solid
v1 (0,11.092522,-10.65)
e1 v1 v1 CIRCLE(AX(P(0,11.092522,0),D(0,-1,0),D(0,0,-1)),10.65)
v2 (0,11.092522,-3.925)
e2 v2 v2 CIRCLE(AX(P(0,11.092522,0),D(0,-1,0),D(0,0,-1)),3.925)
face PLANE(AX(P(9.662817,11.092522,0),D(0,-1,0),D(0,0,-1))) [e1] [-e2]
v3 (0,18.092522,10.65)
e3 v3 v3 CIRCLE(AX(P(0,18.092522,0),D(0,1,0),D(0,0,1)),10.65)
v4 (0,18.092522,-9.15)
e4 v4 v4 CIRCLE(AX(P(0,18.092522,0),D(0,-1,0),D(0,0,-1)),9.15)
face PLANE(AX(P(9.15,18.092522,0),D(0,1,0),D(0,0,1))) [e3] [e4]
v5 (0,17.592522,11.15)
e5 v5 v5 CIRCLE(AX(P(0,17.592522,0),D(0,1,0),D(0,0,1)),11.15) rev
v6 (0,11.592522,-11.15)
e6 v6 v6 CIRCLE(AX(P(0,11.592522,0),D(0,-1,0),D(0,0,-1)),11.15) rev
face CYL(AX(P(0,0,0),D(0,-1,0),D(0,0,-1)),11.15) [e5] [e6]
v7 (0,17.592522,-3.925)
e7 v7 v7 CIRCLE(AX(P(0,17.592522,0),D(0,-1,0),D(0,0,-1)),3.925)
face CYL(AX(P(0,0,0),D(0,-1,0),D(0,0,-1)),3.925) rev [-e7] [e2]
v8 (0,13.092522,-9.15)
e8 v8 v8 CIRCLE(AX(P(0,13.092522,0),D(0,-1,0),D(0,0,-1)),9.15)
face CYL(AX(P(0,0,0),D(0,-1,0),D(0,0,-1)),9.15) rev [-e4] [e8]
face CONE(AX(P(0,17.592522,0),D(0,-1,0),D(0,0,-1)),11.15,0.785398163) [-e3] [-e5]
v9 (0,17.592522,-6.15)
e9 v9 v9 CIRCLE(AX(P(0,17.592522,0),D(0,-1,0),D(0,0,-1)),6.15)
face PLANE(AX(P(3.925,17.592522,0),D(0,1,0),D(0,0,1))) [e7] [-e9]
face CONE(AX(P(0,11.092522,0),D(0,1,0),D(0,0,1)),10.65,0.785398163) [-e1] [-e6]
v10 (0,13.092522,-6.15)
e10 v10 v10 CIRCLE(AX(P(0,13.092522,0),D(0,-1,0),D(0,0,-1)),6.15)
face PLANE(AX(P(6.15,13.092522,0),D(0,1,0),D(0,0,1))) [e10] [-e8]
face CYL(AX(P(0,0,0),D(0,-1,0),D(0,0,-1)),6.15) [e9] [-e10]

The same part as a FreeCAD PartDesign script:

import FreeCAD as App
import Part
import Sketcher

V = App.Vector
Q = App.Units.Quantity


def edges_at(feature, points):
    """Names of the edges that pass closest to the given points."""
    edges = feature.Shape.Edges
    near = lambda p: min(range(len(edges)), key=lambda i: edges[i].distToShape(Part.Vertex(*p))[0])
    return sorted({f"Edge{near(p) + 1}" for p in points})


def add_polygon(sketch, points):
    """Adds a closed chain of lines whose ends are joined by coincident constraints."""
    first, n = sketch.GeometryCount, len(points)
    for a, b in zip(points, points[1:] + points[:1]):
        sketch.addGeometry(Part.LineSegment(App.Vector(*a, 0), App.Vector(*b, 0)), False)
    for i in range(n):
        sketch.addConstraint(Sketcher.Constraint("Coincident", first + i, 2, first + (i + 1) % n, 1))

doc = App.newDocument("Part")
params = doc.addObject("Spreadsheet::Sheet", "Params")
for row, (alias, value) in enumerate([
    ("sketch1_width", "2 mm"),
    ("sketch1_width2", "3 mm"),
    ("sketch1_height", "7 mm"),
    ("sketch1_height2", "5 mm"),
    ("sketch1_height3", "6.5 mm"),
    ("revolution_angle", "360 deg"),
    ("chamfer_size", "0.5 mm"),
], start=1):
    params.set(f"A{row}", alias)
    params.set(f"B{row}", "=" + value)
    params.setAlias(f"B{row}", alias)

body = doc.addObject("PartDesign::Body", "Body")

sketch1 = doc.addObject("Sketcher::SketchObject", "Sketch")
body.addObject(sketch1)
sketch1.AttachmentSupport = (doc.XY_Plane, [""])
sketch1.MapMode = "FlatFace"
add_polygon(sketch1, [(6.2, 17.6), (3.9, 17.6), (3.9, 11.1), (11.2, 11.1), (11.2, 18.1), (9.2, 18.1), (9.2, 13.1), (6.2, 13.1)])
sketch1.addConstraint([
    Sketcher.Constraint("Horizontal", 0),
    Sketcher.Constraint("Vertical", 1),
    Sketcher.Constraint("Horizontal", 2),
    Sketcher.Constraint("Vertical", 3),
    Sketcher.Constraint("Horizontal", 4),
    Sketcher.Constraint("Vertical", 5),
    Sketcher.Constraint("Horizontal", 6),
    Sketcher.Constraint("Vertical", 7),
    Sketcher.Constraint("DistanceX", 4, 2, 4, 1, Q("2 mm")),
    Sketcher.Constraint("DistanceX", 6, 2, 6, 1, Q("3 mm")),
    Sketcher.Constraint("DistanceY", 3, 1, 3, 2, Q("7 mm")),
    Sketcher.Constraint("DistanceY", 5, 2, 5, 1, Q("5 mm")),
    Sketcher.Constraint("DistanceY", 1, 2, 1, 1, Q("6.5 mm")),
    Sketcher.Constraint("DistanceX", 0, 2, 0, 1, Q("2.225 mm")),
    Sketcher.Constraint("DistanceX", -1, 1, 2, 2, Q("11.15 mm")),
    Sketcher.Constraint("DistanceY", -1, 1, 0, 2, Q("17.592522 mm")),
])
sketch1.setExpression("Constraints[16]", "Params.sketch1_width")
sketch1.setExpression("Constraints[17]", "Params.sketch1_width2")
sketch1.setExpression("Constraints[18]", "Params.sketch1_height")
sketch1.setExpression("Constraints[19]", "Params.sketch1_height2")
sketch1.setExpression("Constraints[20]", "Params.sketch1_height3")
revolution = doc.addObject("PartDesign::Revolution", "Revolution")
body.addObject(revolution)
revolution.Profile = sketch1
revolution.ReferenceAxis = (sketch1, ["V_Axis"])
revolution.setExpression("Angle", "Params.revolution_angle")
doc.recompute()

chamfer = doc.addObject("PartDesign::Chamfer", "Chamfer")
body.addObject(chamfer)
chamfer.Base = (revolution, edges_at(revolution, [(-11.15, 18.093, 0), (-11.15, 11.093, 0)]))
chamfer.setExpression("Size", "Params.chamfer_size")

doc.recompute()
